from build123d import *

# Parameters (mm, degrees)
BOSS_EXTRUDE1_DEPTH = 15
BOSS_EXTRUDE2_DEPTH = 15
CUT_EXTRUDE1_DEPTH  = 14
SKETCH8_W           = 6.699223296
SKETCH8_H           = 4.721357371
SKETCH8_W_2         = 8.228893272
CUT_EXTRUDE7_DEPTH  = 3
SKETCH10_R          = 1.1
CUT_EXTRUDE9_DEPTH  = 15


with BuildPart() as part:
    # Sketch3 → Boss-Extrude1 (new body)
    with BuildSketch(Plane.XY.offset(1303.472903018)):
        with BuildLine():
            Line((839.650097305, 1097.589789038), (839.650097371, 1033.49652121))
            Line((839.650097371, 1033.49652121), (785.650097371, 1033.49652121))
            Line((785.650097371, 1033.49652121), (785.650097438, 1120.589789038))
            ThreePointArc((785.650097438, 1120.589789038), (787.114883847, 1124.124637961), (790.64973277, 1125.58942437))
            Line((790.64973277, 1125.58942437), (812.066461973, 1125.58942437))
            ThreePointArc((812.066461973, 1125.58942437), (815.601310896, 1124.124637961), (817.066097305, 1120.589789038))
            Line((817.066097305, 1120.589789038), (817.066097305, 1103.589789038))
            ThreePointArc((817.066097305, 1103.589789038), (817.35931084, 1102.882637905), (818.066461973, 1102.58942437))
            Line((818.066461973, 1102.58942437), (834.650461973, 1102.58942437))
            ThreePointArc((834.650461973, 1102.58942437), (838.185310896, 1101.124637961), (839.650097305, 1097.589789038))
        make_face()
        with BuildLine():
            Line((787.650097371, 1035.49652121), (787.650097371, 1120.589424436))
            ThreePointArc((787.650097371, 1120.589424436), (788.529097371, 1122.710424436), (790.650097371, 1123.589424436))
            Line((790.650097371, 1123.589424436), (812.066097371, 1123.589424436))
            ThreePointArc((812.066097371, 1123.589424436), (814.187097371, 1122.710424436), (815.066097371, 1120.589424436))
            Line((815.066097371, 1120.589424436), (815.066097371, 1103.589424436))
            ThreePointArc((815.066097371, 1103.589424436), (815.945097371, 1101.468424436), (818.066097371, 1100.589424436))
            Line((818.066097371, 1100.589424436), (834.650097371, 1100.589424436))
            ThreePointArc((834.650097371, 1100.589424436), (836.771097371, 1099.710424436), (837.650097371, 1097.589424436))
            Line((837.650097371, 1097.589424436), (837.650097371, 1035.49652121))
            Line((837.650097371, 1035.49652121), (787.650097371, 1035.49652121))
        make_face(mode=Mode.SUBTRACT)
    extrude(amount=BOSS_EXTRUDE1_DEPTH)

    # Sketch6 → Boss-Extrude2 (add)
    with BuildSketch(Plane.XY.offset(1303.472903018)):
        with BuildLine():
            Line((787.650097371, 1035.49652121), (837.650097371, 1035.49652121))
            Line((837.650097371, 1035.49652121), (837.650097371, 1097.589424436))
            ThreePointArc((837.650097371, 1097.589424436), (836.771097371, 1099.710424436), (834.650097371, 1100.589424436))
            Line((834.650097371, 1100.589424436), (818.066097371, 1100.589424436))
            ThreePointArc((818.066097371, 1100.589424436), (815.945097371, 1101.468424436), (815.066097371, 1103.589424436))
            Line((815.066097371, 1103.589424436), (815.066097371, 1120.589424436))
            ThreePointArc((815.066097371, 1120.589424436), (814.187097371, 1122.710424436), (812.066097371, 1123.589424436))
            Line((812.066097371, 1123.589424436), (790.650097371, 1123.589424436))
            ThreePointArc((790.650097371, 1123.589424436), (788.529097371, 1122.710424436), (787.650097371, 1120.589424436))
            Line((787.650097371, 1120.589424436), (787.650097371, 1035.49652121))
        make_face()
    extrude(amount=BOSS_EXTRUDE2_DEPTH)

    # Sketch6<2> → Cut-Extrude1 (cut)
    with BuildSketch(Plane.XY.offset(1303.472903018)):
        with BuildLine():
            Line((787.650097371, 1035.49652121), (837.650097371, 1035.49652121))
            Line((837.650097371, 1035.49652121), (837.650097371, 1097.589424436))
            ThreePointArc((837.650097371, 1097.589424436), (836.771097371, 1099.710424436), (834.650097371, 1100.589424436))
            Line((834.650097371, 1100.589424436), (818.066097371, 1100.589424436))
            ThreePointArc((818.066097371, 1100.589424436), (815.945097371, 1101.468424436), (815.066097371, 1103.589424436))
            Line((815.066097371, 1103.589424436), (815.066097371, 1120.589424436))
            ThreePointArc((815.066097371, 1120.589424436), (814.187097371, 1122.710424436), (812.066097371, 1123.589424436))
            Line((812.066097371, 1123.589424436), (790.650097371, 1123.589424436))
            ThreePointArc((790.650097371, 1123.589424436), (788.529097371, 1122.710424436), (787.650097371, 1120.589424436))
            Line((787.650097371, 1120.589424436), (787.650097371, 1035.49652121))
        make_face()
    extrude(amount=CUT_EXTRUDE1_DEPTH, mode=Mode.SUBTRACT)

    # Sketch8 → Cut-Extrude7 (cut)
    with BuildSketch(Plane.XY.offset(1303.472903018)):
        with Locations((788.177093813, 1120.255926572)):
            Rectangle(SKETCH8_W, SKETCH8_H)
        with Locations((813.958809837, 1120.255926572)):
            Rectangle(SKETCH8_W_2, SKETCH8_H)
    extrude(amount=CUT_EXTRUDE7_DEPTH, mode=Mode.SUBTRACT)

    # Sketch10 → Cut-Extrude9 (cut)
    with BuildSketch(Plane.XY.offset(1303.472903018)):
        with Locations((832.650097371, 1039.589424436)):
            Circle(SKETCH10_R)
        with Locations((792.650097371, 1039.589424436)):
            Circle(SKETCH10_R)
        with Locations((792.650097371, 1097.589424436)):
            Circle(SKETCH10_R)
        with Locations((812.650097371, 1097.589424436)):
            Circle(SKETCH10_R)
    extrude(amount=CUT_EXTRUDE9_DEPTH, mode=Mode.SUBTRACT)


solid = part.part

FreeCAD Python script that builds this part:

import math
import FreeCAD as App
import Part
import Sketcher
from FreeCAD import Vector
Q = App.Units.Quantity

doc = App.newDocument("Part")
body = doc.addObject("PartDesign::Body", "Body")

# Sketch on XY plane
sketch1 = doc.addObject("Sketcher::SketchObject", "Sketch")
body.addObject(sketch1)
sketch1.AttachmentSupport = (doc.XY_Plane, [""])
sketch1.MapMode = "FlatFace"
sketch1.AttachmentOffset = App.Placement(Vector(0, 0, 1303.472903), App.Rotation())
sketch1.addGeometry(Part.LineSegment(Vector(839.7, 1033.5, 0), Vector(839.7, 1097.6, 0)), False)
sketch1.addGeometry(Part.ArcOfCircle(Part.Circle(Vector(834.6, 1097.6, 0), Vector(0, 0, 1), 5), math.radians(0), math.radians(90)), False)
sketch1.addGeometry(Part.LineSegment(Vector(834.7, 1102.6, 0), Vector(818.1, 1102.6, 0)), False)
sketch1.addGeometry(Part.ArcOfCircle(Part.Circle(Vector(818.1, 1103.6, 0), Vector(0, 0, 1), 1), math.radians(-180), math.radians(-90)), False)
sketch1.addGeometry(Part.LineSegment(Vector(817.1, 1103.6, 0), Vector(817.1, 1120.6, 0)), False)
sketch1.addGeometry(Part.ArcOfCircle(Part.Circle(Vector(812.1, 1120.6, 0), Vector(0, 0, 1), 5), math.radians(0), math.radians(90)), False)
sketch1.addGeometry(Part.LineSegment(Vector(812.1, 1125.6, 0), Vector(790.6, 1125.6, 0)), False)
sketch1.addGeometry(Part.ArcOfCircle(Part.Circle(Vector(790.7, 1120.6, 0), Vector(0, 0, 1), 5), math.radians(90), math.radians(180)), False)
sketch1.addGeometry(Part.LineSegment(Vector(785.7, 1120.6, 0), Vector(785.7, 1033.5, 0)), False)
sketch1.addGeometry(Part.LineSegment(Vector(785.7, 1033.5, 0), Vector(839.7, 1033.5, 0)), False)
sketch1.addGeometry(Part.LineSegment(Vector(787.7, 1035.5, 0), Vector(787.7, 1120.6, 0)), False)
sketch1.addGeometry(Part.ArcOfCircle(Part.Circle(Vector(790.7, 1120.6, 0), Vector(0, 0, 1), 3), math.radians(90), math.radians(180)), False)
sketch1.addGeometry(Part.LineSegment(Vector(790.7, 1123.6, 0), Vector(812.1, 1123.6, 0)), False)
sketch1.addGeometry(Part.ArcOfCircle(Part.Circle(Vector(812.1, 1120.6, 0), Vector(0, 0, 1), 3), math.radians(0), math.radians(90)), False)
sketch1.addGeometry(Part.LineSegment(Vector(815.1, 1120.6, 0), Vector(815.1, 1103.6, 0)), False)
sketch1.addGeometry(Part.ArcOfCircle(Part.Circle(Vector(818.1, 1103.6, 0), Vector(0, 0, 1), 3), math.radians(-180), math.radians(-90)), False)
sketch1.addGeometry(Part.LineSegment(Vector(818.1, 1100.6, 0), Vector(834.7, 1100.6, 0)), False)
sketch1.addGeometry(Part.ArcOfCircle(Part.Circle(Vector(834.6, 1097.6, 0), Vector(0, 0, 1), 3), math.radians(0), math.radians(90)), False)
sketch1.addGeometry(Part.LineSegment(Vector(837.7, 1097.6, 0), Vector(837.7, 1035.5, 0)), False)
sketch1.addGeometry(Part.LineSegment(Vector(837.7, 1035.5, 0), Vector(787.7, 1035.5, 0)), False)
sketch1.addConstraint(Sketcher.Constraint("Coincident", 0, 2, 1, 1))
sketch1.addConstraint(Sketcher.Constraint("Coincident", 1, 2, 2, 1))
sketch1.addConstraint(Sketcher.Constraint("Coincident", 2, 2, 3, 2))
sketch1.addConstraint(Sketcher.Constraint("Coincident", 3, 1, 4, 1))
sketch1.addConstraint(Sketcher.Constraint("Coincident", 4, 2, 5, 1))
sketch1.addConstraint(Sketcher.Constraint("Coincident", 5, 2, 6, 1))
sketch1.addConstraint(Sketcher.Constraint("Coincident", 6, 2, 7, 1))
sketch1.addConstraint(Sketcher.Constraint("Coincident", 7, 2, 8, 1))
sketch1.addConstraint(Sketcher.Constraint("Coincident", 8, 2, 9, 1))
sketch1.addConstraint(Sketcher.Constraint("Coincident", 9, 2, 0, 1))
sketch1.addConstraint(Sketcher.Constraint("Coincident", 10, 2, 11, 2))
sketch1.addConstraint(Sketcher.Constraint("Coincident", 11, 1, 12, 1))
sketch1.addConstraint(Sketcher.Constraint("Coincident", 12, 2, 13, 2))
sketch1.addConstraint(Sketcher.Constraint("Coincident", 13, 1, 14, 1))
sketch1.addConstraint(Sketcher.Constraint("Coincident", 14, 2, 15, 1))
sketch1.addConstraint(Sketcher.Constraint("Coincident", 15, 2, 16, 1))
sketch1.addConstraint(Sketcher.Constraint("Coincident", 16, 2, 17, 2))
sketch1.addConstraint(Sketcher.Constraint("Coincident", 17, 1, 18, 1))
sketch1.addConstraint(Sketcher.Constraint("Coincident", 18, 2, 19, 1))
sketch1.addConstraint(Sketcher.Constraint("Coincident", 19, 2, 10, 1))
sketch1.addConstraint(Sketcher.Constraint("Vertical", 0))
sketch1.addConstraint(Sketcher.Constraint("Horizontal", 2))
sketch1.addConstraint(Sketcher.Constraint("Vertical", 4))
sketch1.addConstraint(Sketcher.Constraint("Horizontal", 6))
sketch1.addConstraint(Sketcher.Constraint("Vertical", 8))
sketch1.addConstraint(Sketcher.Constraint("Horizontal", 9))
sketch1.addConstraint(Sketcher.Constraint("Vertical", 10))
sketch1.addConstraint(Sketcher.Constraint("Horizontal", 12))
sketch1.addConstraint(Sketcher.Constraint("Vertical", 14))
sketch1.addConstraint(Sketcher.Constraint("Horizontal", 16))
sketch1.addConstraint(Sketcher.Constraint("Vertical", 18))
sketch1.addConstraint(Sketcher.Constraint("Horizontal", 19))
sketch1.addConstraint(Sketcher.Constraint("Coincident", 11, 3, 7, 3))
sketch1.addConstraint(Sketcher.Constraint("Coincident", 13, 3, 5, 3))
sketch1.addConstraint(Sketcher.Constraint("Coincident", 15, 3, 3, 3))
sketch1.addConstraint(Sketcher.Constraint("Coincident", 17, 3, 1, 3))
sketch1.addConstraint(Sketcher.Constraint("Equal", 1, 5))
sketch1.addConstraint(Sketcher.Constraint("Equal", 5, 7))
sketch1.addConstraint(Sketcher.Constraint("Equal", 13, 15))
sketch1.addConstraint(Sketcher.Constraint("Horizontal", 4, 2, 7, 2))
sketch1.addConstraint(Sketcher.Constraint("Horizontal", 10, 2, 13, 1))
sketch1.addConstraint(Sketcher.Constraint("Equal", 2, 16))
sketch1.addConstraint(Sketcher.Constraint("Equal", 4, 14))
sketch1.addConstraint(Sketcher.Constraint("DistanceX", 9, 1, 9, 2, Q("54 mm")))
sketch1.addConstraint(Sketcher.Constraint("DistanceX", 19, 2, 19, 1, Q("50 mm")))
sketch1.addConstraint(Sketcher.Constraint("DistanceY", 4, 1, 4, 2, Q("17 mm")))
sketch1.addConstraint(Sketcher.Constraint("DistanceY", 1, 3, 5, 3, Q("23 mm")))
sketch1.addConstraint(Sketcher.Constraint("DistanceY", 10, 2, 6, 2, Q("5 mm")))
sketch1.addConstraint(Sketcher.Constraint("DistanceX", 10, 2, 11, 1, Q("3 mm")))
sketch1.addConstraint(Sketcher.Constraint("DistanceX", 12, 2, 4, 2, Q("5 mm")))
sketch1.addConstraint(Sketcher.Constraint("DistanceX", 3, 1, 15, 2, Q("1 mm")))
sketch1.addConstraint(Sketcher.Constraint("DistanceX", 16, 2, 0, 2, Q("5 mm")))
sketch1.addConstraint(Sketcher.Constraint("DistanceY", 17, 1, 16, 2, Q("3 mm")))
sketch1.addConstraint(Sketcher.Constraint("DistanceY", 9, 2, 18, 2, Q("2 mm")))
sketch1.addConstraint(Sketcher.Constraint("DistanceX", 2, 2, 2, 1, Q("16.584 mm")))
sketch1.addConstraint(Sketcher.Constraint("Radius", 1, Q("5.001094 mm")))
sketch1.addConstraint(Sketcher.Constraint("DistanceX", 6, 2, 6, 1, Q("21.416729 mm")))
sketch1.addConstraint(Sketcher.Constraint("DistanceY", 0, 1, 0, 2, Q("64.093268 mm")))
sketch1.addConstraint(Sketcher.Constraint("DistanceY", 8, 2, 8, 1, Q("87.093268 mm")))
sketch1.addConstraint(Sketcher.Constraint("DistanceY", 10, 1, 10, 2, Q("85.092903 mm")))
sketch1.addConstraint(Sketcher.Constraint("DistanceY", -1, 1, 1, 3, Q("1097.58833 mm")))
sketch1.addConstraint(Sketcher.Constraint("DistanceX", -1, 1, 3, 3, Q("818.067192 mm")))
sketch1.addConstraint(Sketcher.Constraint("DistanceX", -1, 1, 1, 2, Q("834.650462 mm")))
sketch1.addConstraint(Sketcher.Constraint("DistanceX", -1, 1, 5, 2, Q("812.066462 mm")))
pad1 = doc.addObject("PartDesign::Pad", "Pad")
body.addObject(pad1)
pad1.Profile = sketch1
pad1.Length = 15

# Sketch on XY plane
sketch2 = doc.addObject("Sketcher::SketchObject", "Sketch001")
body.addObject(sketch2)
sketch2.AttachmentSupport = (doc.XY_Plane, [""])
sketch2.MapMode = "FlatFace"
sketch2.AttachmentOffset = App.Placement(Vector(0, 0, 1303.472903), App.Rotation())
sketch2.addGeometry(Part.LineSegment(Vector(787.7, 1035.5, 0), Vector(837.7, 1035.5, 0)), False)
sketch2.addGeometry(Part.LineSegment(Vector(837.7, 1035.5, 0), Vector(837.7, 1097.6, 0)), False)
sketch2.addGeometry(Part.ArcOfCircle(Part.Circle(Vector(834.6, 1097.6, 0), Vector(0, 0, 1), 3), math.radians(0), math.radians(90)), False)
sketch2.addGeometry(Part.LineSegment(Vector(834.7, 1100.6, 0), Vector(818.1, 1100.6, 0)), False)
sketch2.addGeometry(Part.ArcOfCircle(Part.Circle(Vector(818.1, 1103.6, 0), Vector(0, 0, 1), 3), math.radians(-180), math.radians(-90)), False)
sketch2.addGeometry(Part.LineSegment(Vector(815.1, 1103.6, 0), Vector(815.1, 1120.6, 0)), False)
sketch2.addGeometry(Part.ArcOfCircle(Part.Circle(Vector(812.1, 1120.6, 0), Vector(0, 0, 1), 3), math.radians(0), math.radians(90)), False)
sketch2.addGeometry(Part.LineSegment(Vector(812.1, 1123.6, 0), Vector(790.7, 1123.6, 0)), False)
sketch2.addGeometry(Part.ArcOfCircle(Part.Circle(Vector(790.7, 1120.6, 0), Vector(0, 0, 1), 3), math.radians(90), math.radians(180)), False)
sketch2.addGeometry(Part.LineSegment(Vector(787.7, 1120.6, 0), Vector(787.7, 1035.5, 0)), False)
sketch2.addConstraint(Sketcher.Constraint("Coincident", 0, 2, 1, 1))
sketch2.addConstraint(Sketcher.Constraint("Coincident", 1, 2, 2, 1))
sketch2.addConstraint(Sketcher.Constraint("Coincident", 2, 2, 3, 1))
sketch2.addConstraint(Sketcher.Constraint("Coincident", 3, 2, 4, 2))
sketch2.addConstraint(Sketcher.Constraint("Coincident", 4, 1, 5, 1))
sketch2.addConstraint(Sketcher.Constraint("Coincident", 5, 2, 6, 1))
sketch2.addConstraint(Sketcher.Constraint("Coincident", 6, 2, 7, 1))
sketch2.addConstraint(Sketcher.Constraint("Coincident", 7, 2, 8, 1))
sketch2.addConstraint(Sketcher.Constraint("Coincident", 8, 2, 9, 1))
sketch2.addConstraint(Sketcher.Constraint("Coincident", 9, 2, 0, 1))
sketch2.addConstraint(Sketcher.Constraint("Horizontal", 0))
sketch2.addConstraint(Sketcher.Constraint("Vertical", 1))
sketch2.addConstraint(Sketcher.Constraint("Horizontal", 3))
sketch2.addConstraint(Sketcher.Constraint("Vertical", 5))
sketch2.addConstraint(Sketcher.Constraint("Horizontal", 7))
sketch2.addConstraint(Sketcher.Constraint("Vertical", 9))
sketch2.addConstraint(Sketcher.Constraint("Equal", 2, 4))
sketch2.addConstraint(Sketcher.Constraint("Equal", 4, 6))
sketch2.addConstraint(Sketcher.Constraint("Equal", 6, 8))
sketch2.addConstraint(Sketcher.Constraint("Horizontal", 5, 2, 8, 2))
sketch2.addConstraint(Sketcher.Constraint("DistanceX", 0, 1, 0, 2, Q("50 mm")))
sketch2.addConstraint(Sketcher.Constraint("DistanceY", 5, 1, 5, 2, Q("17 mm")))
sketch2.addConstraint(Sketcher.Constraint("DistanceY", 2, 3, 6, 3, Q("23 mm")))
sketch2.addConstraint(Sketcher.Constraint("DistanceX", 2, 2, 1, 2, Q("3 mm")))
sketch2.addConstraint(Sketcher.Constraint("DistanceY", 1, 2, 2, 2, Q("3 mm")))
sketch2.addConstraint(Sketcher.Constraint("DistanceX", 4, 1, 3, 2, Q("3 mm")))
sketch2.addConstraint(Sketcher.Constraint("DistanceY", 3, 2, 4, 1, Q("3 mm")))
sketch2.addConstraint(Sketcher.Constraint("DistanceX", 6, 2, 5, 2, Q("3 mm")))
sketch2.addConstraint(Sketcher.Constraint("DistanceX", 8, 2, 7, 2, Q("3 mm")))
sketch2.addConstraint(Sketcher.Constraint("DistanceX", 3, 2, 3, 1, Q("16.584 mm")))
sketch2.addConstraint(Sketcher.Constraint("Radius", 2, Q("3.001094 mm")))
sketch2.addConstraint(Sketcher.Constraint("DistanceY", 1, 1, 1, 2, Q("62.092903 mm")))
sketch2.addConstraint(Sketcher.Constraint("DistanceY", -1, 1, 2, 3, Q("1097.58833 mm")))
sketch2.addConstraint(Sketcher.Constraint("DistanceX", -1, 1, 4, 3, Q("818.067192 mm")))
pad2 = doc.addObject("PartDesign::Pad", "Pad001")
body.addObject(pad2)
pad2.Profile = sketch2
pad2.Length = 15

# Sketch on XY plane
sketch3 = doc.addObject("Sketcher::SketchObject", "Sketch002")
body.addObject(sketch3)
sketch3.AttachmentSupport = (doc.XY_Plane, [""])
sketch3.MapMode = "FlatFace"
sketch3.AttachmentOffset = App.Placement(Vector(0, 0, 1303.472903), App.Rotation())
sketch3.addGeometry(Part.LineSegment(Vector(787.7, 1035.5, 0), Vector(837.7, 1035.5, 0)), False)
sketch3.addGeometry(Part.LineSegment(Vector(837.7, 1035.5, 0), Vector(837.7, 1097.6, 0)), False)
sketch3.addGeometry(Part.ArcOfCircle(Part.Circle(Vector(834.6, 1097.6, 0), Vector(0, 0, 1), 3), math.radians(0), math.radians(90)), False)
sketch3.addGeometry(Part.LineSegment(Vector(834.7, 1100.6, 0), Vector(818.1, 1100.6, 0)), False)
sketch3.addGeometry(Part.ArcOfCircle(Part.Circle(Vector(818.1, 1103.6, 0), Vector(0, 0, 1), 3), math.radians(-180), math.radians(-90)), False)
sketch3.addGeometry(Part.LineSegment(Vector(815.1, 1103.6, 0), Vector(815.1, 1120.6, 0)), False)
sketch3.addGeometry(Part.ArcOfCircle(Part.Circle(Vector(812.1, 1120.6, 0), Vector(0, 0, 1), 3), math.radians(0), math.radians(90)), False)
sketch3.addGeometry(Part.LineSegment(Vector(812.1, 1123.6, 0), Vector(790.7, 1123.6, 0)), False)
sketch3.addGeometry(Part.ArcOfCircle(Part.Circle(Vector(790.7, 1120.6, 0), Vector(0, 0, 1), 3), math.radians(90), math.radians(180)), False)
sketch3.addGeometry(Part.LineSegment(Vector(787.7, 1120.6, 0), Vector(787.7, 1035.5, 0)), False)
sketch3.addConstraint(Sketcher.Constraint("Coincident", 0, 2, 1, 1))
sketch3.addConstraint(Sketcher.Constraint("Coincident", 1, 2, 2, 1))
sketch3.addConstraint(Sketcher.Constraint("Coincident", 2, 2, 3, 1))
sketch3.addConstraint(Sketcher.Constraint("Coincident", 3, 2, 4, 2))
sketch3.addConstraint(Sketcher.Constraint("Coincident", 4, 1, 5, 1))
sketch3.addConstraint(Sketcher.Constraint("Coincident", 5, 2, 6, 1))
sketch3.addConstraint(Sketcher.Constraint("Coincident", 6, 2, 7, 1))
sketch3.addConstraint(Sketcher.Constraint("Coincident", 7, 2, 8, 1))
sketch3.addConstraint(Sketcher.Constraint("Coincident", 8, 2, 9, 1))
sketch3.addConstraint(Sketcher.Constraint("Coincident", 9, 2, 0, 1))
sketch3.addConstraint(Sketcher.Constraint("Horizontal", 0))
sketch3.addConstraint(Sketcher.Constraint("Vertical", 1))
sketch3.addConstraint(Sketcher.Constraint("Horizontal", 3))
sketch3.addConstraint(Sketcher.Constraint("Vertical", 5))
sketch3.addConstraint(Sketcher.Constraint("Horizontal", 7))
sketch3.addConstraint(Sketcher.Constraint("Vertical", 9))
sketch3.addConstraint(Sketcher.Constraint("Equal", 2, 4))
sketch3.addConstraint(Sketcher.Constraint("Equal", 4, 6))
sketch3.addConstraint(Sketcher.Constraint("Equal", 6, 8))
sketch3.addConstraint(Sketcher.Constraint("Horizontal", 5, 2, 8, 2))
sketch3.addConstraint(Sketcher.Constraint("DistanceX", 0, 1, 0, 2, Q("50 mm")))
sketch3.addConstraint(Sketcher.Constraint("DistanceY", 5, 1, 5, 2, Q("17 mm")))
sketch3.addConstraint(Sketcher.Constraint("DistanceY", 2, 3, 6, 3, Q("23 mm")))
sketch3.addConstraint(Sketcher.Constraint("DistanceX", 2, 2, 1, 2, Q("3 mm")))
sketch3.addConstraint(Sketcher.Constraint("DistanceY", 1, 2, 2, 2, Q("3 mm")))
sketch3.addConstraint(Sketcher.Constraint("DistanceX", 4, 1, 3, 2, Q("3 mm")))
sketch3.addConstraint(Sketcher.Constraint("DistanceY", 3, 2, 4, 1, Q("3 mm")))
sketch3.addConstraint(Sketcher.Constraint("DistanceX", 6, 2, 5, 2, Q("3 mm")))
sketch3.addConstraint(Sketcher.Constraint("DistanceX", 8, 2, 7, 2, Q("3 mm")))
sketch3.addConstraint(Sketcher.Constraint("DistanceX", 3, 2, 3, 1, Q("16.584 mm")))
sketch3.addConstraint(Sketcher.Constraint("Radius", 2, Q("3.001094 mm")))
sketch3.addConstraint(Sketcher.Constraint("DistanceY", 1, 1, 1, 2, Q("62.092903 mm")))
sketch3.addConstraint(Sketcher.Constraint("DistanceY", -1, 1, 2, 3, Q("1097.58833 mm")))
sketch3.addConstraint(Sketcher.Constraint("DistanceX", -1, 1, 4, 3, Q("818.067192 mm")))
pocket1 = doc.addObject("PartDesign::Pocket", "Pocket")
body.addObject(pocket1)
pocket1.Profile = sketch3
pocket1.Length = 14
pocket1.Reversed = True

# Sketch on XY plane
sketch4 = doc.addObject("Sketcher::SketchObject", "Sketch003")
body.addObject(sketch4)
sketch4.AttachmentSupport = (doc.XY_Plane, [""])
sketch4.MapMode = "FlatFace"
sketch4.AttachmentOffset = App.Placement(Vector(0, 0, 1303.472903), App.Rotation())
sketch4.addGeometry(Part.LineSegment(Vector(784.8, 1122.6, 0), Vector(784.8, 1117.9, 0)), False)
sketch4.addGeometry(Part.LineSegment(Vector(784.8, 1117.9, 0), Vector(791.5, 1117.9, 0)), False)
sketch4.addGeometry(Part.LineSegment(Vector(791.5, 1117.9, 0), Vector(791.5, 1122.6, 0)), False)
sketch4.addGeometry(Part.LineSegment(Vector(791.5, 1122.6, 0), Vector(784.8, 1122.6, 0)), False)
sketch4.addGeometry(Part.LineSegment(Vector(809.8, 1122.6, 0), Vector(809.8, 1117.9, 0)), False)
sketch4.addGeometry(Part.LineSegment(Vector(809.8, 1117.9, 0), Vector(818.1, 1117.9, 0)), False)
sketch4.addGeometry(Part.LineSegment(Vector(818.1, 1117.9, 0), Vector(818.1, 1122.6, 0)), False)
sketch4.addGeometry(Part.LineSegment(Vector(818.1, 1122.6, 0), Vector(809.8, 1122.6, 0)), False)
sketch4.addConstraint(Sketcher.Constraint("Coincident", 0, 2, 1, 1))
sketch4.addConstraint(Sketcher.Constraint("Coincident", 1, 2, 2, 1))
sketch4.addConstraint(Sketcher.Constraint("Coincident", 2, 2, 3, 1))
sketch4.addConstraint(Sketcher.Constraint("Coincident", 3, 2, 0, 1))
sketch4.addConstraint(Sketcher.Constraint("Coincident", 4, 2, 5, 1))
sketch4.addConstraint(Sketcher.Constraint("Coincident", 5, 2, 6, 1))
sketch4.addConstraint(Sketcher.Constraint("Coincident", 6, 2, 7, 1))
sketch4.addConstraint(Sketcher.Constraint("Coincident", 7, 2, 4, 1))
sketch4.addConstraint(Sketcher.Constraint("Vertical", 0))
sketch4.addConstraint(Sketcher.Constraint("Horizontal", 1))
sketch4.addConstraint(Sketcher.Constraint("Vertical", 2))
sketch4.addConstraint(Sketcher.Constraint("Horizontal", 3))
sketch4.addConstraint(Sketcher.Constraint("Vertical", 4))
sketch4.addConstraint(Sketcher.Constraint("Horizontal", 5))
sketch4.addConstraint(Sketcher.Constraint("Vertical", 6))
sketch4.addConstraint(Sketcher.Constraint("Horizontal", 7))
sketch4.addConstraint(Sketcher.Constraint("Horizontal", 1, 2, 4, 2))
sketch4.addConstraint(Sketcher.Constraint("Horizontal", 3, 2, 6, 2))
sketch4.addConstraint(Sketcher.Constraint("DistanceX", 1, 1, 1, 2, Q("6.699223 mm")))
sketch4.addConstraint(Sketcher.Constraint("DistanceX", 5, 1, 5, 2, Q("8.228893 mm")))
sketch4.addConstraint(Sketcher.Constraint("DistanceY", 0, 2, 0, 1, Q("4.721357 mm")))
sketch4.addConstraint(Sketcher.Constraint("DistanceX", 0, 2, 4, 2, Q("25.016881 mm")))
sketch4.addConstraint(Sketcher.Constraint("DistanceX", -1, 1, 0, 2, Q("784.827482 mm")))
sketch4.addConstraint(Sketcher.Constraint("DistanceY", -1, 1, 0, 2, Q("1117.895248 mm")))
pocket2 = doc.addObject("PartDesign::Pocket", "Pocket001")
body.addObject(pocket2)
pocket2.Profile = sketch4
pocket2.Length = 3
pocket2.Reversed = True

# Sketch on XY plane
sketch5 = doc.addObject("Sketcher::SketchObject", "Sketch004")
body.addObject(sketch5)
sketch5.AttachmentSupport = (doc.XY_Plane, [""])
sketch5.MapMode = "FlatFace"
sketch5.AttachmentOffset = App.Placement(Vector(0, 0, 1303.472903), App.Rotation())
sketch5.addGeometry(Part.Circle(Vector(832.7, 1039.6, 0), Vector(0, 0, 1), 1.1), False)
sketch5.addGeometry(Part.Circle(Vector(792.7, 1039.6, 0), Vector(0, 0, 1), 1.1), False)
sketch5.addGeometry(Part.Circle(Vector(792.7, 1097.6, 0), Vector(0, 0, 1), 1.1), False)
sketch5.addGeometry(Part.Circle(Vector(812.7, 1097.6, 0), Vector(0, 0, 1), 1.1), False)
sketch5.addConstraint(Sketcher.Constraint("Equal", 0, 1))
sketch5.addConstraint(Sketcher.Constraint("Equal", 1, 2))
sketch5.addConstraint(Sketcher.Constraint("Equal", 2, 3))
sketch5.addConstraint(Sketcher.Constraint("Horizontal", 0, 3, 1, 3))
sketch5.addConstraint(Sketcher.Constraint("Horizontal", 2, 3, 3, 3))
sketch5.addConstraint(Sketcher.Constraint("Vertical", 1, 3, 2, 3))
sketch5.addConstraint(Sketcher.Constraint("Diameter", 0, Q("2.2 mm")))
sketch5.addConstraint(Sketcher.Constraint("DistanceX", 1, 3, 0, 3, Q("40 mm")))
sketch5.addConstraint(Sketcher.Constraint("DistanceY", 1, 3, 2, 3, Q("58 mm")))
sketch5.addConstraint(Sketcher.Constraint("DistanceX", 2, 3, 3, 3, Q("20 mm")))
sketch5.addConstraint(Sketcher.Constraint("DistanceX", -1, 1, 0, 3, Q("832.650097 mm")))
sketch5.addConstraint(Sketcher.Constraint("DistanceY", -1, 1, 0, 3, Q("1039.589424 mm")))
pocket3 = doc.addObject("PartDesign::Pocket", "Pocket002")
body.addObject(pocket3)
pocket3.Profile = sketch5
pocket3.Length = 15
pocket3.Reversed = True

doc.recompute()
